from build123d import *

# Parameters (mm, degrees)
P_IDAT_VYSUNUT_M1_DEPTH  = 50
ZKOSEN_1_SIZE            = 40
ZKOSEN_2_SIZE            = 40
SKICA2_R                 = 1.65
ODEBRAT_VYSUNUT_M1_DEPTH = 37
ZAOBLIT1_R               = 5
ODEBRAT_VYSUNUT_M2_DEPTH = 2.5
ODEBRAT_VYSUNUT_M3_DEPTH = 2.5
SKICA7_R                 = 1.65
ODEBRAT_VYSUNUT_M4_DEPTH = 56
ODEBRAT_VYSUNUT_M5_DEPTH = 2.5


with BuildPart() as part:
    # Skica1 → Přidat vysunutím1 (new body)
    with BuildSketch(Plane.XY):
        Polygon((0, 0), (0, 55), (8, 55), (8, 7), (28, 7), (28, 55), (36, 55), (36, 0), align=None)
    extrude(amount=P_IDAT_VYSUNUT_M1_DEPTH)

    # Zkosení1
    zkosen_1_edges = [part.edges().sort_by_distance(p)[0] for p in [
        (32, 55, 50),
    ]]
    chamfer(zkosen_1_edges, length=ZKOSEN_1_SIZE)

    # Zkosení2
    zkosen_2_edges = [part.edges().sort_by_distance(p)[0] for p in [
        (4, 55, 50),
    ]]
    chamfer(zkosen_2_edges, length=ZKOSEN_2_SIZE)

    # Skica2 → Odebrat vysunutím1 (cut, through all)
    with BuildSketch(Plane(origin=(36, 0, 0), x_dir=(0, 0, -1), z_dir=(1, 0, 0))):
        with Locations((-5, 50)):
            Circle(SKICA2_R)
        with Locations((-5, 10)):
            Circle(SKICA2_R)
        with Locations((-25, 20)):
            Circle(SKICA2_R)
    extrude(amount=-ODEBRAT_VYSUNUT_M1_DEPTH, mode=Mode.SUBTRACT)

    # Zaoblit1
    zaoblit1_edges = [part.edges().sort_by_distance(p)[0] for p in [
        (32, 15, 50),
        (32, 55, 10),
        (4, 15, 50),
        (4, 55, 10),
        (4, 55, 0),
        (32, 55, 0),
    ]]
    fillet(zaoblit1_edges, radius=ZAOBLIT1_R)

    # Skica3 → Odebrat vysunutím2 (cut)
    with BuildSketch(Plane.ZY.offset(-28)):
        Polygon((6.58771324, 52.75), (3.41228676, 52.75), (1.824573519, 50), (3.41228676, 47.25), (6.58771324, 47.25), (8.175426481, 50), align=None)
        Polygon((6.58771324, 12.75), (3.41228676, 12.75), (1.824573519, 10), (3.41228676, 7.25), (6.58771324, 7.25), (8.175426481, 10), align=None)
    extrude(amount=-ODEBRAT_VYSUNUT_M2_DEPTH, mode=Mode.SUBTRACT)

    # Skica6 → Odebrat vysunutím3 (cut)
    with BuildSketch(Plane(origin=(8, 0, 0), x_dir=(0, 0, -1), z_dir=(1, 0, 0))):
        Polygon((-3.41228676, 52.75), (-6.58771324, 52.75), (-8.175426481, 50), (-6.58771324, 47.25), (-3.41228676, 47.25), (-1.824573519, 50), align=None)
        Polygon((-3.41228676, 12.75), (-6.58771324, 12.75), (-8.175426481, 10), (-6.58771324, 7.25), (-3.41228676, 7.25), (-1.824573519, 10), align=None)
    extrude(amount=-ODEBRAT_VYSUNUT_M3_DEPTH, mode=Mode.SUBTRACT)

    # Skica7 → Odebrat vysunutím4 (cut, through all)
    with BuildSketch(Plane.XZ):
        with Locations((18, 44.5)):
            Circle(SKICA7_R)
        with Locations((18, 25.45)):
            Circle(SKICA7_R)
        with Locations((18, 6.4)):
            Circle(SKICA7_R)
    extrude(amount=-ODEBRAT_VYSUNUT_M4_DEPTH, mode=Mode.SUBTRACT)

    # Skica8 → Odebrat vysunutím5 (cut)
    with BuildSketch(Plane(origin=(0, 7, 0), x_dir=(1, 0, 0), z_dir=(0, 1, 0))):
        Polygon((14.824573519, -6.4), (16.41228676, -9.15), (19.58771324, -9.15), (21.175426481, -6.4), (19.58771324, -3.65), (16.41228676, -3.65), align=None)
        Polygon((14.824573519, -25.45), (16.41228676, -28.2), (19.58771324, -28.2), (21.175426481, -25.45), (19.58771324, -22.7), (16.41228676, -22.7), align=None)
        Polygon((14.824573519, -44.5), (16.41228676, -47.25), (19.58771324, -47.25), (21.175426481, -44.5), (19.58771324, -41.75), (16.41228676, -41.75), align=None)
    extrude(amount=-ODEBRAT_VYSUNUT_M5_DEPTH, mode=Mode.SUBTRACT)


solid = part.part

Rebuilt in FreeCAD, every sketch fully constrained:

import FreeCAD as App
import Part
import Sketcher
Q = App.Units.Quantity


def edges_at(feature, points):
    """Names of the edges that pass closest to the given points."""
    edges = feature.Shape.Edges
    near = lambda p: min(range(len(edges)), key=lambda i: edges[i].distToShape(Part.Vertex(*p))[0])
    return sorted({f"Edge{near(p) + 1}" for p in points})

doc = App.newDocument("Part")
body = doc.addObject("PartDesign::Body", "Body")

# Sketch on XY plane
sketch1 = doc.addObject("Sketcher::SketchObject", "Sketch")
body.addObject(sketch1)
sketch1.AttachmentSupport = (doc.XY_Plane, [""])
sketch1.MapMode = "FlatFace"
sketch1.addGeometry([
    Part.LineSegment(App.Vector(0, 55, 0), App.Vector(0, 0, 0)),  # 0
    Part.LineSegment(App.Vector(0, 0, 0), App.Vector(36, 0, 0)),  # 1
    Part.LineSegment(App.Vector(36, 0, 0), App.Vector(36, 55, 0)),  # 2
    Part.LineSegment(App.Vector(36, 55, 0), App.Vector(28, 55, 0)),  # 3
    Part.LineSegment(App.Vector(28, 55, 0), App.Vector(28, 7, 0)),  # 4
    Part.LineSegment(App.Vector(28, 7, 0), App.Vector(8, 7, 0)),  # 5
    Part.LineSegment(App.Vector(8, 7, 0), App.Vector(8, 55, 0)),  # 6
    Part.LineSegment(App.Vector(8, 55, 0), App.Vector(0, 55, 0)),  # 7
], False)
sketch1.addConstraint([
    Sketcher.Constraint("Coincident", 0, 2, 1, 1),
    Sketcher.Constraint("Coincident", 1, 2, 2, 1),
    Sketcher.Constraint("Coincident", 2, 2, 3, 1),
    Sketcher.Constraint("Coincident", 3, 2, 4, 1),
    Sketcher.Constraint("Coincident", 4, 2, 5, 1),
    Sketcher.Constraint("Coincident", 5, 2, 6, 1),
    Sketcher.Constraint("Coincident", 6, 2, 7, 1),
    Sketcher.Constraint("Coincident", 7, 2, 0, 1),
    Sketcher.Constraint("Vertical", 0),
    Sketcher.Constraint("Horizontal", 1),
    Sketcher.Constraint("Vertical", 2),
    Sketcher.Constraint("Horizontal", 3),
    Sketcher.Constraint("Vertical", 4),
    Sketcher.Constraint("Horizontal", 5),
    Sketcher.Constraint("Vertical", 6),
    Sketcher.Constraint("Horizontal", 7),
    Sketcher.Constraint("Coincident", 0, 2, -1, 1),
    Sketcher.Constraint("Horizontal", 3, 2, 6, 2),
    Sketcher.Constraint("Equal", 3, 7),
    Sketcher.Constraint("DistanceX", 1, 1, 1, 2, 36.0),
    Sketcher.Constraint("DistanceX", 3, 2, 3, 1, 8.0),
    Sketcher.Constraint("DistanceY", 0, 2, 0, 1, 55.0),
    Sketcher.Constraint("DistanceY", 4, 2, 4, 1, 48.0),
])
pad1 = doc.addObject("PartDesign::Pad", "Pad")
body.addObject(pad1)
pad1.Profile = sketch1
pad1.Length = 50
doc.recompute()

chamfer = doc.addObject("PartDesign::Chamfer", "Chamfer")
body.addObject(chamfer)
chamfer.Base = (pad1, edges_at(pad1, [(32, 55, 50)]))
chamfer.Size = 40
doc.recompute()

chamfer2 = doc.addObject("PartDesign::Chamfer", "Chamfer001")
body.addObject(chamfer2)
chamfer2.Base = (chamfer, edges_at(chamfer, [(4, 55, 50)]))
chamfer2.Size = 40

# Sketch on YZ plane
sketch2 = doc.addObject("Sketcher::SketchObject", "Sketch001")
body.addObject(sketch2)
sketch2.AttachmentSupport = (doc.YZ_Plane, [""])
sketch2.MapMode = "FlatFace"
sketch2.AttachmentOffset = App.Placement(App.Vector(0, 0, 36), App.Rotation())
sketch2.addGeometry([
    Part.Circle(App.Vector(50, 5, 0), App.Vector(0, 0, 1), 1.6),
    Part.Circle(App.Vector(10, 5, 0), App.Vector(0, 0, 1), 1.6),
    Part.Circle(App.Vector(20, 25, 0), App.Vector(0, 0, 1), 1.6),
], False)
sketch2.addConstraint([
    Sketcher.Constraint("Equal", 0, 1),
    Sketcher.Constraint("Equal", 1, 2),
    Sketcher.Constraint("Horizontal", 0, 3, 1, 3),
    Sketcher.Constraint("Diameter", 0, 3.3),
    Sketcher.Constraint("DistanceX", -1, 1, 0, 3, 50.0),
    Sketcher.Constraint("DistanceY", -1, 1, 0, 3, 5.0),
    Sketcher.Constraint("DistanceX", -1, 1, 1, 3, 10.0),
    Sketcher.Constraint("DistanceX", -1, 1, 2, 3, 20.0),
    Sketcher.Constraint("DistanceY", -1, 1, 2, 3, 25.0),
])
pocket1 = doc.addObject("PartDesign::Pocket", "Pocket")
body.addObject(pocket1)
pocket1.Profile = sketch2
pocket1.Type = "ThroughAll"
doc.recompute()

fillet = doc.addObject("PartDesign::Fillet", "Fillet")
body.addObject(fillet)
fillet.Base = (pocket1, edges_at(pocket1, [
    (32, 15, 50),
    (32, 55, 10),
    (4, 15, 50),
    (4, 55, 10),
    (4, 55, 0),
    (32, 55, 0),
]))
fillet.Radius = 5

# Sketch on YZ plane
sketch3 = doc.addObject("Sketcher::SketchObject", "Sketch002")
body.addObject(sketch3)
sketch3.AttachmentSupport = (doc.YZ_Plane, [""])
sketch3.MapMode = "FlatFace"
sketch3.AttachmentOffset = App.Placement(App.Vector(0, 0, 28), App.Rotation())
sketch3.addGeometry([
    Part.LineSegment(App.Vector(52.8, 6.6, 0), App.Vector(52.8, 3.4, 0)),  # 0
    Part.LineSegment(App.Vector(52.8, 3.4, 0), App.Vector(50, 1.8, 0)),  # 1
    Part.LineSegment(App.Vector(50, 1.8, 0), App.Vector(47.2, 3.4, 0)),  # 2
    Part.LineSegment(App.Vector(47.2, 3.4, 0), App.Vector(47.2, 6.6, 0)),  # 3
    Part.LineSegment(App.Vector(47.2, 6.6, 0), App.Vector(50, 8.2, 0)),  # 4
    Part.LineSegment(App.Vector(50, 8.2, 0), App.Vector(52.8, 6.6, 0)),  # 5
    Part.LineSegment(App.Vector(12.8, 6.6, 0), App.Vector(12.8, 3.4, 0)),  # 6
    Part.LineSegment(App.Vector(12.8, 3.4, 0), App.Vector(10, 1.8, 0)),  # 7
    Part.LineSegment(App.Vector(10, 1.8, 0), App.Vector(7.2, 3.4, 0)),  # 8
    Part.LineSegment(App.Vector(7.2, 3.4, 0), App.Vector(7.2, 6.6, 0)),  # 9
    Part.LineSegment(App.Vector(7.2, 6.6, 0), App.Vector(10, 8.2, 0)),  # 10
    Part.LineSegment(App.Vector(10, 8.2, 0), App.Vector(12.8, 6.6, 0)),  # 11
], False)
sketch3.addConstraint([
    Sketcher.Constraint("Coincident", 0, 2, 1, 1),
    Sketcher.Constraint("Coincident", 1, 2, 2, 1),
    Sketcher.Constraint("Coincident", 2, 2, 3, 1),
    Sketcher.Constraint("Coincident", 3, 2, 4, 1),
    Sketcher.Constraint("Coincident", 4, 2, 5, 1),
    Sketcher.Constraint("Coincident", 5, 2, 0, 1),
    Sketcher.Constraint("Coincident", 6, 2, 7, 1),
    Sketcher.Constraint("Coincident", 7, 2, 8, 1),
    Sketcher.Constraint("Coincident", 8, 2, 9, 1),
    Sketcher.Constraint("Coincident", 9, 2, 10, 1),
    Sketcher.Constraint("Coincident", 10, 2, 11, 1),
    Sketcher.Constraint("Coincident", 11, 2, 6, 1),
    Sketcher.Constraint("Vertical", 0),
    Sketcher.Constraint("Vertical", 3),
    Sketcher.Constraint("Vertical", 6),
    Sketcher.Constraint("Vertical", 9),
    Sketcher.Constraint("Parallel", 1, 4),
    Sketcher.Constraint("Parallel", 2, 5),
    Sketcher.Constraint("Parallel", 4, 7),
    Sketcher.Constraint("Parallel", 5, 8),
    Sketcher.Constraint("Parallel", 7, 10),
    Sketcher.Constraint("Parallel", 8, 11),
    Sketcher.Constraint("Horizontal", 0, 2, 2, 2),
    Sketcher.Constraint("Horizontal", 3, 2, 5, 2),
    Sketcher.Constraint("Horizontal", 2, 2, 6, 2),
    Sketcher.Constraint("Horizontal", 1, 2, 7, 2),
    Sketcher.Constraint("Horizontal", 6, 2, 8, 2),
    Sketcher.Constraint("Horizontal", 5, 2, 9, 2),
    Sketcher.Constraint("Horizontal", 4, 2, 10, 2),
    Sketcher.Constraint("Vertical", 1, 2, 4, 2),
    Sketcher.Constraint("Angle", 1, Q("-150 deg")),
    Sketcher.Constraint("DistanceX", -1, 1, 1, 2, 50.0),
    Sketcher.Constraint("DistanceX", -1, 1, 7, 2, 10.0),
    Sketcher.Constraint("DistanceX", 2, 2, 0, 2, 5.5),
    Sketcher.Constraint("DistanceY", 0, 2, 0, 1, 3.175426),
    Sketcher.Constraint("DistanceY", -1, 1, 0, 2, 3.412287),
])
pocket2 = doc.addObject("PartDesign::Pocket", "Pocket001")
body.addObject(pocket2)
pocket2.Profile = sketch3
pocket2.Length = 2.5
pocket2.Reversed = True

# Sketch on YZ plane
sketch4 = doc.addObject("Sketcher::SketchObject", "Sketch003")
body.addObject(sketch4)
sketch4.AttachmentSupport = (doc.YZ_Plane, [""])
sketch4.MapMode = "FlatFace"
sketch4.AttachmentOffset = App.Placement(App.Vector(0, 0, 8), App.Rotation())
sketch4.addGeometry([
    Part.LineSegment(App.Vector(52.8, 3.4, 0), App.Vector(52.8, 6.6, 0)),  # 0
    Part.LineSegment(App.Vector(52.8, 6.6, 0), App.Vector(50, 8.2, 0)),  # 1
    Part.LineSegment(App.Vector(50, 8.2, 0), App.Vector(47.2, 6.6, 0)),  # 2
    Part.LineSegment(App.Vector(47.2, 6.6, 0), App.Vector(47.2, 3.4, 0)),  # 3
    Part.LineSegment(App.Vector(47.2, 3.4, 0), App.Vector(50, 1.8, 0)),  # 4
    Part.LineSegment(App.Vector(50, 1.8, 0), App.Vector(52.8, 3.4, 0)),  # 5
    Part.LineSegment(App.Vector(12.8, 3.4, 0), App.Vector(12.8, 6.6, 0)),  # 6
    Part.LineSegment(App.Vector(12.8, 6.6, 0), App.Vector(10, 8.2, 0)),  # 7
    Part.LineSegment(App.Vector(10, 8.2, 0), App.Vector(7.2, 6.6, 0)),  # 8
    Part.LineSegment(App.Vector(7.2, 6.6, 0), App.Vector(7.2, 3.4, 0)),  # 9
    Part.LineSegment(App.Vector(7.2, 3.4, 0), App.Vector(10, 1.8, 0)),  # 10
    Part.LineSegment(App.Vector(10, 1.8, 0), App.Vector(12.8, 3.4, 0)),  # 11
], False)
sketch4.addConstraint([
    Sketcher.Constraint("Coincident", 0, 2, 1, 1),
    Sketcher.Constraint("Coincident", 1, 2, 2, 1),
    Sketcher.Constraint("Coincident", 2, 2, 3, 1),
    Sketcher.Constraint("Coincident", 3, 2, 4, 1),
    Sketcher.Constraint("Coincident", 4, 2, 5, 1),
    Sketcher.Constraint("Coincident", 5, 2, 0, 1),
    Sketcher.Constraint("Coincident", 6, 2, 7, 1),
    Sketcher.Constraint("Coincident", 7, 2, 8, 1),
    Sketcher.Constraint("Coincident", 8, 2, 9, 1),
    Sketcher.Constraint("Coincident", 9, 2, 10, 1),
    Sketcher.Constraint("Coincident", 10, 2, 11, 1),
    Sketcher.Constraint("Coincident", 11, 2, 6, 1),
    Sketcher.Constraint("Vertical", 0),
    Sketcher.Constraint("Vertical", 3),
    Sketcher.Constraint("Vertical", 6),
    Sketcher.Constraint("Vertical", 9),
    Sketcher.Constraint("Parallel", 1, 4),
    Sketcher.Constraint("Parallel", 2, 5),
    Sketcher.Constraint("Parallel", 4, 7),
    Sketcher.Constraint("Parallel", 5, 8),
    Sketcher.Constraint("Parallel", 7, 10),
    Sketcher.Constraint("Parallel", 8, 11),
    Sketcher.Constraint("Horizontal", 0, 2, 2, 2),
    Sketcher.Constraint("Horizontal", 3, 2, 5, 2),
    Sketcher.Constraint("Horizontal", 2, 2, 6, 2),
    Sketcher.Constraint("Horizontal", 1, 2, 7, 2),
    Sketcher.Constraint("Horizontal", 6, 2, 8, 2),
    Sketcher.Constraint("Horizontal", 5, 2, 9, 2),
    Sketcher.Constraint("Horizontal", 4, 2, 10, 2),
    Sketcher.Constraint("Vertical", 1, 2, 4, 2),
    Sketcher.Constraint("Angle", 1, Q("150 deg")),
    Sketcher.Constraint("DistanceX", -1, 1, 1, 2, 50.0),
    Sketcher.Constraint("DistanceX", -1, 1, 7, 2, 10.0),
    Sketcher.Constraint("DistanceX", 2, 2, 0, 2, 5.5),
    Sketcher.Constraint("DistanceY", 0, 1, 0, 2, 3.175426),
    Sketcher.Constraint("DistanceY", -1, 1, 0, 2, 6.587713),
])
pocket3 = doc.addObject("PartDesign::Pocket", "Pocket002")
body.addObject(pocket3)
pocket3.Profile = sketch4
pocket3.Length = 2.5

# Sketch on XZ plane
sketch5 = doc.addObject("Sketcher::SketchObject", "Sketch004")
body.addObject(sketch5)
sketch5.AttachmentSupport = (doc.XZ_Plane, [""])
sketch5.MapMode = "FlatFace"
sketch5.addGeometry([
    Part.Circle(App.Vector(18, 44.5, 0), App.Vector(0, 0, 1), 1.6),
    Part.Circle(App.Vector(18, 25.4, 0), App.Vector(0, 0, 1), 1.6),
    Part.Circle(App.Vector(18, 6.4, 0), App.Vector(0, 0, 1), 1.6),
], False)
sketch5.addConstraint([
    Sketcher.Constraint("Equal", 0, 1),
    Sketcher.Constraint("Equal", 1, 2),
    Sketcher.Constraint("Vertical", 0, 3, 1, 3),
    Sketcher.Constraint("Vertical", 1, 3, 2, 3),
    Sketcher.Constraint("Diameter", 0, 3.3),
    Sketcher.Constraint("DistanceX", -1, 1, 0, 3, 18.0),
    Sketcher.Constraint("DistanceY", -1, 1, 0, 3, 44.5),
    Sketcher.Constraint("DistanceY", -1, 1, 2, 3, 6.4),
    Sketcher.Constraint("DistanceY", -1, 1, 1, 3, 25.45),
])
pocket4 = doc.addObject("PartDesign::Pocket", "Pocket003")
body.addObject(pocket4)
pocket4.Profile = sketch5
pocket4.Type = "ThroughAll"

# Sketch on XZ plane
sketch6 = doc.addObject("Sketcher::SketchObject", "Sketch005")
body.addObject(sketch6)
sketch6.AttachmentSupport = (doc.XZ_Plane, [""])
sketch6.MapMode = "FlatFace"
sketch6.AttachmentOffset = App.Placement(App.Vector(0, 0, -7), App.Rotation())
sketch6.addGeometry([
    Part.LineSegment(App.Vector(14.8, 6.4, 0), App.Vector(16.4, 9.2, 0)),  # 0
    Part.LineSegment(App.Vector(16.4, 9.2, 0), App.Vector(19.6, 9.2, 0)),  # 1
    Part.LineSegment(App.Vector(19.6, 9.2, 0), App.Vector(21.2, 6.4, 0)),  # 2
    Part.LineSegment(App.Vector(21.2, 6.4, 0), App.Vector(19.6, 3.6, 0)),  # 3
    Part.LineSegment(App.Vector(19.6, 3.6, 0), App.Vector(16.4, 3.6, 0)),  # 4
    Part.LineSegment(App.Vector(16.4, 3.6, 0), App.Vector(14.8, 6.4, 0)),  # 5
    Part.LineSegment(App.Vector(14.8, 25.4, 0), App.Vector(16.4, 28.2, 0)),  # 6
    Part.LineSegment(App.Vector(16.4, 28.2, 0), App.Vector(19.6, 28.2, 0)),  # 7
    Part.LineSegment(App.Vector(19.6, 28.2, 0), App.Vector(21.2, 25.4, 0)),  # 8
    Part.LineSegment(App.Vector(21.2, 25.4, 0), App.Vector(19.6, 22.7, 0)),  # 9
    Part.LineSegment(App.Vector(19.6, 22.7, 0), App.Vector(16.4, 22.7, 0)),  # 10
    Part.LineSegment(App.Vector(16.4, 22.7, 0), App.Vector(14.8, 25.4, 0)),  # 11
    Part.LineSegment(App.Vector(14.8, 44.5, 0), App.Vector(16.4, 47.2, 0)),  # 12
    Part.LineSegment(App.Vector(16.4, 47.2, 0), App.Vector(19.6, 47.2, 0)),  # 13
    Part.LineSegment(App.Vector(19.6, 47.2, 0), App.Vector(21.2, 44.5, 0)),  # 14
    Part.LineSegment(App.Vector(21.2, 44.5, 0), App.Vector(19.6, 41.8, 0)),  # 15
    Part.LineSegment(App.Vector(19.6, 41.8, 0), App.Vector(16.4, 41.8, 0)),  # 16
    Part.LineSegment(App.Vector(16.4, 41.8, 0), App.Vector(14.8, 44.5, 0)),  # 17
], False)
sketch6.addConstraint([
    Sketcher.Constraint("Coincident", 0, 2, 1, 1),
    Sketcher.Constraint("Coincident", 1, 2, 2, 1),
    Sketcher.Constraint("Coincident", 2, 2, 3, 1),
    Sketcher.Constraint("Coincident", 3, 2, 4, 1),
    Sketcher.Constraint("Coincident", 4, 2, 5, 1),
    Sketcher.Constraint("Coincident", 5, 2, 0, 1),
    Sketcher.Constraint("Coincident", 6, 2, 7, 1),
    Sketcher.Constraint("Coincident", 7, 2, 8, 1),
    Sketcher.Constraint("Coincident", 8, 2, 9, 1),
    Sketcher.Constraint("Coincident", 9, 2, 10, 1),
    Sketcher.Constraint("Coincident", 10, 2, 11, 1),
    Sketcher.Constraint("Coincident", 11, 2, 6, 1),
    Sketcher.Constraint("Coincident", 12, 2, 13, 1),
    Sketcher.Constraint("Coincident", 13, 2, 14, 1),
    Sketcher.Constraint("Coincident", 14, 2, 15, 1),
    Sketcher.Constraint("Coincident", 15, 2, 16, 1),
    Sketcher.Constraint("Coincident", 16, 2, 17, 1),
    Sketcher.Constraint("Coincident", 17, 2, 12, 1),
    Sketcher.Constraint("Horizontal", 1),
    Sketcher.Constraint("Horizontal", 4),
    Sketcher.Constraint("Horizontal", 7),
    Sketcher.Constraint("Horizontal", 10),
    Sketcher.Constraint("Horizontal", 13),
    Sketcher.Constraint("Horizontal", 16),
    Sketcher.Constraint("Parallel", 0, 3),
    Sketcher.Constraint("Parallel", 2, 5),
    Sketcher.Constraint("Parallel", 3, 6),
    Sketcher.Constraint("Parallel", 5, 8),
    Sketcher.Constraint("Parallel", 6, 9),
    Sketcher.Constraint("Parallel", 8, 11),
    Sketcher.Constraint("Parallel", 9, 12),
    Sketcher.Constraint("Parallel", 11, 14),
    Sketcher.Constraint("Parallel", 12, 15),
    Sketcher.Constraint("Parallel", 14, 17),
    Sketcher.Constraint("Horizontal", 2, 2, 5, 2),
    Sketcher.Constraint("Horizontal", 8, 2, 11, 2),
    Sketcher.Constraint("Horizontal", 14, 2, 17, 2),
    Sketcher.Constraint("Vertical", 1, 2, 3, 2),
    Sketcher.Constraint("Vertical", 0, 2, 4, 2),
    Sketcher.Constraint("Vertical", 4, 2, 6, 2),
    Sketcher.Constraint("Vertical", 3, 2, 7, 2),
    Sketcher.Constraint("Vertical", 2, 2, 8, 2),
    Sketcher.Constraint("Vertical", 7, 2, 9, 2),
    Sketcher.Constraint("Vertical", 10, 2, 12, 2),
    Sketcher.Constraint("Vertical", 9, 2, 13, 2),
    Sketcher.Constraint("Vertical", 8, 2, 14, 2),
    Sketcher.Constraint("Vertical", 13, 2, 15, 2),
    Sketcher.Constraint("Angle", 0, Q("60 deg")),
    Sketcher.Constraint("DistanceY", -1, 1, 2, 2, 6.4),
    Sketcher.Constraint("DistanceY", -1, 1, 6, 2, 28.2),
    Sketcher.Constraint("DistanceY", -1, 1, 9, 2, 22.7),
    Sketcher.Constraint("DistanceY", -1, 1, 14, 2, 44.5),
    Sketcher.Constraint("DistanceX", 1, 1, 1, 2, 3.175426),
    Sketcher.Constraint("DistanceX", -1, 1, 0, 2, 16.412287),
])
pocket5 = doc.addObject("PartDesign::Pocket", "Pocket004")
body.addObject(pocket5)
pocket5.Profile = sketch6
pocket5.Length = 2.5
pocket5.Reversed = True

doc.recompute()
